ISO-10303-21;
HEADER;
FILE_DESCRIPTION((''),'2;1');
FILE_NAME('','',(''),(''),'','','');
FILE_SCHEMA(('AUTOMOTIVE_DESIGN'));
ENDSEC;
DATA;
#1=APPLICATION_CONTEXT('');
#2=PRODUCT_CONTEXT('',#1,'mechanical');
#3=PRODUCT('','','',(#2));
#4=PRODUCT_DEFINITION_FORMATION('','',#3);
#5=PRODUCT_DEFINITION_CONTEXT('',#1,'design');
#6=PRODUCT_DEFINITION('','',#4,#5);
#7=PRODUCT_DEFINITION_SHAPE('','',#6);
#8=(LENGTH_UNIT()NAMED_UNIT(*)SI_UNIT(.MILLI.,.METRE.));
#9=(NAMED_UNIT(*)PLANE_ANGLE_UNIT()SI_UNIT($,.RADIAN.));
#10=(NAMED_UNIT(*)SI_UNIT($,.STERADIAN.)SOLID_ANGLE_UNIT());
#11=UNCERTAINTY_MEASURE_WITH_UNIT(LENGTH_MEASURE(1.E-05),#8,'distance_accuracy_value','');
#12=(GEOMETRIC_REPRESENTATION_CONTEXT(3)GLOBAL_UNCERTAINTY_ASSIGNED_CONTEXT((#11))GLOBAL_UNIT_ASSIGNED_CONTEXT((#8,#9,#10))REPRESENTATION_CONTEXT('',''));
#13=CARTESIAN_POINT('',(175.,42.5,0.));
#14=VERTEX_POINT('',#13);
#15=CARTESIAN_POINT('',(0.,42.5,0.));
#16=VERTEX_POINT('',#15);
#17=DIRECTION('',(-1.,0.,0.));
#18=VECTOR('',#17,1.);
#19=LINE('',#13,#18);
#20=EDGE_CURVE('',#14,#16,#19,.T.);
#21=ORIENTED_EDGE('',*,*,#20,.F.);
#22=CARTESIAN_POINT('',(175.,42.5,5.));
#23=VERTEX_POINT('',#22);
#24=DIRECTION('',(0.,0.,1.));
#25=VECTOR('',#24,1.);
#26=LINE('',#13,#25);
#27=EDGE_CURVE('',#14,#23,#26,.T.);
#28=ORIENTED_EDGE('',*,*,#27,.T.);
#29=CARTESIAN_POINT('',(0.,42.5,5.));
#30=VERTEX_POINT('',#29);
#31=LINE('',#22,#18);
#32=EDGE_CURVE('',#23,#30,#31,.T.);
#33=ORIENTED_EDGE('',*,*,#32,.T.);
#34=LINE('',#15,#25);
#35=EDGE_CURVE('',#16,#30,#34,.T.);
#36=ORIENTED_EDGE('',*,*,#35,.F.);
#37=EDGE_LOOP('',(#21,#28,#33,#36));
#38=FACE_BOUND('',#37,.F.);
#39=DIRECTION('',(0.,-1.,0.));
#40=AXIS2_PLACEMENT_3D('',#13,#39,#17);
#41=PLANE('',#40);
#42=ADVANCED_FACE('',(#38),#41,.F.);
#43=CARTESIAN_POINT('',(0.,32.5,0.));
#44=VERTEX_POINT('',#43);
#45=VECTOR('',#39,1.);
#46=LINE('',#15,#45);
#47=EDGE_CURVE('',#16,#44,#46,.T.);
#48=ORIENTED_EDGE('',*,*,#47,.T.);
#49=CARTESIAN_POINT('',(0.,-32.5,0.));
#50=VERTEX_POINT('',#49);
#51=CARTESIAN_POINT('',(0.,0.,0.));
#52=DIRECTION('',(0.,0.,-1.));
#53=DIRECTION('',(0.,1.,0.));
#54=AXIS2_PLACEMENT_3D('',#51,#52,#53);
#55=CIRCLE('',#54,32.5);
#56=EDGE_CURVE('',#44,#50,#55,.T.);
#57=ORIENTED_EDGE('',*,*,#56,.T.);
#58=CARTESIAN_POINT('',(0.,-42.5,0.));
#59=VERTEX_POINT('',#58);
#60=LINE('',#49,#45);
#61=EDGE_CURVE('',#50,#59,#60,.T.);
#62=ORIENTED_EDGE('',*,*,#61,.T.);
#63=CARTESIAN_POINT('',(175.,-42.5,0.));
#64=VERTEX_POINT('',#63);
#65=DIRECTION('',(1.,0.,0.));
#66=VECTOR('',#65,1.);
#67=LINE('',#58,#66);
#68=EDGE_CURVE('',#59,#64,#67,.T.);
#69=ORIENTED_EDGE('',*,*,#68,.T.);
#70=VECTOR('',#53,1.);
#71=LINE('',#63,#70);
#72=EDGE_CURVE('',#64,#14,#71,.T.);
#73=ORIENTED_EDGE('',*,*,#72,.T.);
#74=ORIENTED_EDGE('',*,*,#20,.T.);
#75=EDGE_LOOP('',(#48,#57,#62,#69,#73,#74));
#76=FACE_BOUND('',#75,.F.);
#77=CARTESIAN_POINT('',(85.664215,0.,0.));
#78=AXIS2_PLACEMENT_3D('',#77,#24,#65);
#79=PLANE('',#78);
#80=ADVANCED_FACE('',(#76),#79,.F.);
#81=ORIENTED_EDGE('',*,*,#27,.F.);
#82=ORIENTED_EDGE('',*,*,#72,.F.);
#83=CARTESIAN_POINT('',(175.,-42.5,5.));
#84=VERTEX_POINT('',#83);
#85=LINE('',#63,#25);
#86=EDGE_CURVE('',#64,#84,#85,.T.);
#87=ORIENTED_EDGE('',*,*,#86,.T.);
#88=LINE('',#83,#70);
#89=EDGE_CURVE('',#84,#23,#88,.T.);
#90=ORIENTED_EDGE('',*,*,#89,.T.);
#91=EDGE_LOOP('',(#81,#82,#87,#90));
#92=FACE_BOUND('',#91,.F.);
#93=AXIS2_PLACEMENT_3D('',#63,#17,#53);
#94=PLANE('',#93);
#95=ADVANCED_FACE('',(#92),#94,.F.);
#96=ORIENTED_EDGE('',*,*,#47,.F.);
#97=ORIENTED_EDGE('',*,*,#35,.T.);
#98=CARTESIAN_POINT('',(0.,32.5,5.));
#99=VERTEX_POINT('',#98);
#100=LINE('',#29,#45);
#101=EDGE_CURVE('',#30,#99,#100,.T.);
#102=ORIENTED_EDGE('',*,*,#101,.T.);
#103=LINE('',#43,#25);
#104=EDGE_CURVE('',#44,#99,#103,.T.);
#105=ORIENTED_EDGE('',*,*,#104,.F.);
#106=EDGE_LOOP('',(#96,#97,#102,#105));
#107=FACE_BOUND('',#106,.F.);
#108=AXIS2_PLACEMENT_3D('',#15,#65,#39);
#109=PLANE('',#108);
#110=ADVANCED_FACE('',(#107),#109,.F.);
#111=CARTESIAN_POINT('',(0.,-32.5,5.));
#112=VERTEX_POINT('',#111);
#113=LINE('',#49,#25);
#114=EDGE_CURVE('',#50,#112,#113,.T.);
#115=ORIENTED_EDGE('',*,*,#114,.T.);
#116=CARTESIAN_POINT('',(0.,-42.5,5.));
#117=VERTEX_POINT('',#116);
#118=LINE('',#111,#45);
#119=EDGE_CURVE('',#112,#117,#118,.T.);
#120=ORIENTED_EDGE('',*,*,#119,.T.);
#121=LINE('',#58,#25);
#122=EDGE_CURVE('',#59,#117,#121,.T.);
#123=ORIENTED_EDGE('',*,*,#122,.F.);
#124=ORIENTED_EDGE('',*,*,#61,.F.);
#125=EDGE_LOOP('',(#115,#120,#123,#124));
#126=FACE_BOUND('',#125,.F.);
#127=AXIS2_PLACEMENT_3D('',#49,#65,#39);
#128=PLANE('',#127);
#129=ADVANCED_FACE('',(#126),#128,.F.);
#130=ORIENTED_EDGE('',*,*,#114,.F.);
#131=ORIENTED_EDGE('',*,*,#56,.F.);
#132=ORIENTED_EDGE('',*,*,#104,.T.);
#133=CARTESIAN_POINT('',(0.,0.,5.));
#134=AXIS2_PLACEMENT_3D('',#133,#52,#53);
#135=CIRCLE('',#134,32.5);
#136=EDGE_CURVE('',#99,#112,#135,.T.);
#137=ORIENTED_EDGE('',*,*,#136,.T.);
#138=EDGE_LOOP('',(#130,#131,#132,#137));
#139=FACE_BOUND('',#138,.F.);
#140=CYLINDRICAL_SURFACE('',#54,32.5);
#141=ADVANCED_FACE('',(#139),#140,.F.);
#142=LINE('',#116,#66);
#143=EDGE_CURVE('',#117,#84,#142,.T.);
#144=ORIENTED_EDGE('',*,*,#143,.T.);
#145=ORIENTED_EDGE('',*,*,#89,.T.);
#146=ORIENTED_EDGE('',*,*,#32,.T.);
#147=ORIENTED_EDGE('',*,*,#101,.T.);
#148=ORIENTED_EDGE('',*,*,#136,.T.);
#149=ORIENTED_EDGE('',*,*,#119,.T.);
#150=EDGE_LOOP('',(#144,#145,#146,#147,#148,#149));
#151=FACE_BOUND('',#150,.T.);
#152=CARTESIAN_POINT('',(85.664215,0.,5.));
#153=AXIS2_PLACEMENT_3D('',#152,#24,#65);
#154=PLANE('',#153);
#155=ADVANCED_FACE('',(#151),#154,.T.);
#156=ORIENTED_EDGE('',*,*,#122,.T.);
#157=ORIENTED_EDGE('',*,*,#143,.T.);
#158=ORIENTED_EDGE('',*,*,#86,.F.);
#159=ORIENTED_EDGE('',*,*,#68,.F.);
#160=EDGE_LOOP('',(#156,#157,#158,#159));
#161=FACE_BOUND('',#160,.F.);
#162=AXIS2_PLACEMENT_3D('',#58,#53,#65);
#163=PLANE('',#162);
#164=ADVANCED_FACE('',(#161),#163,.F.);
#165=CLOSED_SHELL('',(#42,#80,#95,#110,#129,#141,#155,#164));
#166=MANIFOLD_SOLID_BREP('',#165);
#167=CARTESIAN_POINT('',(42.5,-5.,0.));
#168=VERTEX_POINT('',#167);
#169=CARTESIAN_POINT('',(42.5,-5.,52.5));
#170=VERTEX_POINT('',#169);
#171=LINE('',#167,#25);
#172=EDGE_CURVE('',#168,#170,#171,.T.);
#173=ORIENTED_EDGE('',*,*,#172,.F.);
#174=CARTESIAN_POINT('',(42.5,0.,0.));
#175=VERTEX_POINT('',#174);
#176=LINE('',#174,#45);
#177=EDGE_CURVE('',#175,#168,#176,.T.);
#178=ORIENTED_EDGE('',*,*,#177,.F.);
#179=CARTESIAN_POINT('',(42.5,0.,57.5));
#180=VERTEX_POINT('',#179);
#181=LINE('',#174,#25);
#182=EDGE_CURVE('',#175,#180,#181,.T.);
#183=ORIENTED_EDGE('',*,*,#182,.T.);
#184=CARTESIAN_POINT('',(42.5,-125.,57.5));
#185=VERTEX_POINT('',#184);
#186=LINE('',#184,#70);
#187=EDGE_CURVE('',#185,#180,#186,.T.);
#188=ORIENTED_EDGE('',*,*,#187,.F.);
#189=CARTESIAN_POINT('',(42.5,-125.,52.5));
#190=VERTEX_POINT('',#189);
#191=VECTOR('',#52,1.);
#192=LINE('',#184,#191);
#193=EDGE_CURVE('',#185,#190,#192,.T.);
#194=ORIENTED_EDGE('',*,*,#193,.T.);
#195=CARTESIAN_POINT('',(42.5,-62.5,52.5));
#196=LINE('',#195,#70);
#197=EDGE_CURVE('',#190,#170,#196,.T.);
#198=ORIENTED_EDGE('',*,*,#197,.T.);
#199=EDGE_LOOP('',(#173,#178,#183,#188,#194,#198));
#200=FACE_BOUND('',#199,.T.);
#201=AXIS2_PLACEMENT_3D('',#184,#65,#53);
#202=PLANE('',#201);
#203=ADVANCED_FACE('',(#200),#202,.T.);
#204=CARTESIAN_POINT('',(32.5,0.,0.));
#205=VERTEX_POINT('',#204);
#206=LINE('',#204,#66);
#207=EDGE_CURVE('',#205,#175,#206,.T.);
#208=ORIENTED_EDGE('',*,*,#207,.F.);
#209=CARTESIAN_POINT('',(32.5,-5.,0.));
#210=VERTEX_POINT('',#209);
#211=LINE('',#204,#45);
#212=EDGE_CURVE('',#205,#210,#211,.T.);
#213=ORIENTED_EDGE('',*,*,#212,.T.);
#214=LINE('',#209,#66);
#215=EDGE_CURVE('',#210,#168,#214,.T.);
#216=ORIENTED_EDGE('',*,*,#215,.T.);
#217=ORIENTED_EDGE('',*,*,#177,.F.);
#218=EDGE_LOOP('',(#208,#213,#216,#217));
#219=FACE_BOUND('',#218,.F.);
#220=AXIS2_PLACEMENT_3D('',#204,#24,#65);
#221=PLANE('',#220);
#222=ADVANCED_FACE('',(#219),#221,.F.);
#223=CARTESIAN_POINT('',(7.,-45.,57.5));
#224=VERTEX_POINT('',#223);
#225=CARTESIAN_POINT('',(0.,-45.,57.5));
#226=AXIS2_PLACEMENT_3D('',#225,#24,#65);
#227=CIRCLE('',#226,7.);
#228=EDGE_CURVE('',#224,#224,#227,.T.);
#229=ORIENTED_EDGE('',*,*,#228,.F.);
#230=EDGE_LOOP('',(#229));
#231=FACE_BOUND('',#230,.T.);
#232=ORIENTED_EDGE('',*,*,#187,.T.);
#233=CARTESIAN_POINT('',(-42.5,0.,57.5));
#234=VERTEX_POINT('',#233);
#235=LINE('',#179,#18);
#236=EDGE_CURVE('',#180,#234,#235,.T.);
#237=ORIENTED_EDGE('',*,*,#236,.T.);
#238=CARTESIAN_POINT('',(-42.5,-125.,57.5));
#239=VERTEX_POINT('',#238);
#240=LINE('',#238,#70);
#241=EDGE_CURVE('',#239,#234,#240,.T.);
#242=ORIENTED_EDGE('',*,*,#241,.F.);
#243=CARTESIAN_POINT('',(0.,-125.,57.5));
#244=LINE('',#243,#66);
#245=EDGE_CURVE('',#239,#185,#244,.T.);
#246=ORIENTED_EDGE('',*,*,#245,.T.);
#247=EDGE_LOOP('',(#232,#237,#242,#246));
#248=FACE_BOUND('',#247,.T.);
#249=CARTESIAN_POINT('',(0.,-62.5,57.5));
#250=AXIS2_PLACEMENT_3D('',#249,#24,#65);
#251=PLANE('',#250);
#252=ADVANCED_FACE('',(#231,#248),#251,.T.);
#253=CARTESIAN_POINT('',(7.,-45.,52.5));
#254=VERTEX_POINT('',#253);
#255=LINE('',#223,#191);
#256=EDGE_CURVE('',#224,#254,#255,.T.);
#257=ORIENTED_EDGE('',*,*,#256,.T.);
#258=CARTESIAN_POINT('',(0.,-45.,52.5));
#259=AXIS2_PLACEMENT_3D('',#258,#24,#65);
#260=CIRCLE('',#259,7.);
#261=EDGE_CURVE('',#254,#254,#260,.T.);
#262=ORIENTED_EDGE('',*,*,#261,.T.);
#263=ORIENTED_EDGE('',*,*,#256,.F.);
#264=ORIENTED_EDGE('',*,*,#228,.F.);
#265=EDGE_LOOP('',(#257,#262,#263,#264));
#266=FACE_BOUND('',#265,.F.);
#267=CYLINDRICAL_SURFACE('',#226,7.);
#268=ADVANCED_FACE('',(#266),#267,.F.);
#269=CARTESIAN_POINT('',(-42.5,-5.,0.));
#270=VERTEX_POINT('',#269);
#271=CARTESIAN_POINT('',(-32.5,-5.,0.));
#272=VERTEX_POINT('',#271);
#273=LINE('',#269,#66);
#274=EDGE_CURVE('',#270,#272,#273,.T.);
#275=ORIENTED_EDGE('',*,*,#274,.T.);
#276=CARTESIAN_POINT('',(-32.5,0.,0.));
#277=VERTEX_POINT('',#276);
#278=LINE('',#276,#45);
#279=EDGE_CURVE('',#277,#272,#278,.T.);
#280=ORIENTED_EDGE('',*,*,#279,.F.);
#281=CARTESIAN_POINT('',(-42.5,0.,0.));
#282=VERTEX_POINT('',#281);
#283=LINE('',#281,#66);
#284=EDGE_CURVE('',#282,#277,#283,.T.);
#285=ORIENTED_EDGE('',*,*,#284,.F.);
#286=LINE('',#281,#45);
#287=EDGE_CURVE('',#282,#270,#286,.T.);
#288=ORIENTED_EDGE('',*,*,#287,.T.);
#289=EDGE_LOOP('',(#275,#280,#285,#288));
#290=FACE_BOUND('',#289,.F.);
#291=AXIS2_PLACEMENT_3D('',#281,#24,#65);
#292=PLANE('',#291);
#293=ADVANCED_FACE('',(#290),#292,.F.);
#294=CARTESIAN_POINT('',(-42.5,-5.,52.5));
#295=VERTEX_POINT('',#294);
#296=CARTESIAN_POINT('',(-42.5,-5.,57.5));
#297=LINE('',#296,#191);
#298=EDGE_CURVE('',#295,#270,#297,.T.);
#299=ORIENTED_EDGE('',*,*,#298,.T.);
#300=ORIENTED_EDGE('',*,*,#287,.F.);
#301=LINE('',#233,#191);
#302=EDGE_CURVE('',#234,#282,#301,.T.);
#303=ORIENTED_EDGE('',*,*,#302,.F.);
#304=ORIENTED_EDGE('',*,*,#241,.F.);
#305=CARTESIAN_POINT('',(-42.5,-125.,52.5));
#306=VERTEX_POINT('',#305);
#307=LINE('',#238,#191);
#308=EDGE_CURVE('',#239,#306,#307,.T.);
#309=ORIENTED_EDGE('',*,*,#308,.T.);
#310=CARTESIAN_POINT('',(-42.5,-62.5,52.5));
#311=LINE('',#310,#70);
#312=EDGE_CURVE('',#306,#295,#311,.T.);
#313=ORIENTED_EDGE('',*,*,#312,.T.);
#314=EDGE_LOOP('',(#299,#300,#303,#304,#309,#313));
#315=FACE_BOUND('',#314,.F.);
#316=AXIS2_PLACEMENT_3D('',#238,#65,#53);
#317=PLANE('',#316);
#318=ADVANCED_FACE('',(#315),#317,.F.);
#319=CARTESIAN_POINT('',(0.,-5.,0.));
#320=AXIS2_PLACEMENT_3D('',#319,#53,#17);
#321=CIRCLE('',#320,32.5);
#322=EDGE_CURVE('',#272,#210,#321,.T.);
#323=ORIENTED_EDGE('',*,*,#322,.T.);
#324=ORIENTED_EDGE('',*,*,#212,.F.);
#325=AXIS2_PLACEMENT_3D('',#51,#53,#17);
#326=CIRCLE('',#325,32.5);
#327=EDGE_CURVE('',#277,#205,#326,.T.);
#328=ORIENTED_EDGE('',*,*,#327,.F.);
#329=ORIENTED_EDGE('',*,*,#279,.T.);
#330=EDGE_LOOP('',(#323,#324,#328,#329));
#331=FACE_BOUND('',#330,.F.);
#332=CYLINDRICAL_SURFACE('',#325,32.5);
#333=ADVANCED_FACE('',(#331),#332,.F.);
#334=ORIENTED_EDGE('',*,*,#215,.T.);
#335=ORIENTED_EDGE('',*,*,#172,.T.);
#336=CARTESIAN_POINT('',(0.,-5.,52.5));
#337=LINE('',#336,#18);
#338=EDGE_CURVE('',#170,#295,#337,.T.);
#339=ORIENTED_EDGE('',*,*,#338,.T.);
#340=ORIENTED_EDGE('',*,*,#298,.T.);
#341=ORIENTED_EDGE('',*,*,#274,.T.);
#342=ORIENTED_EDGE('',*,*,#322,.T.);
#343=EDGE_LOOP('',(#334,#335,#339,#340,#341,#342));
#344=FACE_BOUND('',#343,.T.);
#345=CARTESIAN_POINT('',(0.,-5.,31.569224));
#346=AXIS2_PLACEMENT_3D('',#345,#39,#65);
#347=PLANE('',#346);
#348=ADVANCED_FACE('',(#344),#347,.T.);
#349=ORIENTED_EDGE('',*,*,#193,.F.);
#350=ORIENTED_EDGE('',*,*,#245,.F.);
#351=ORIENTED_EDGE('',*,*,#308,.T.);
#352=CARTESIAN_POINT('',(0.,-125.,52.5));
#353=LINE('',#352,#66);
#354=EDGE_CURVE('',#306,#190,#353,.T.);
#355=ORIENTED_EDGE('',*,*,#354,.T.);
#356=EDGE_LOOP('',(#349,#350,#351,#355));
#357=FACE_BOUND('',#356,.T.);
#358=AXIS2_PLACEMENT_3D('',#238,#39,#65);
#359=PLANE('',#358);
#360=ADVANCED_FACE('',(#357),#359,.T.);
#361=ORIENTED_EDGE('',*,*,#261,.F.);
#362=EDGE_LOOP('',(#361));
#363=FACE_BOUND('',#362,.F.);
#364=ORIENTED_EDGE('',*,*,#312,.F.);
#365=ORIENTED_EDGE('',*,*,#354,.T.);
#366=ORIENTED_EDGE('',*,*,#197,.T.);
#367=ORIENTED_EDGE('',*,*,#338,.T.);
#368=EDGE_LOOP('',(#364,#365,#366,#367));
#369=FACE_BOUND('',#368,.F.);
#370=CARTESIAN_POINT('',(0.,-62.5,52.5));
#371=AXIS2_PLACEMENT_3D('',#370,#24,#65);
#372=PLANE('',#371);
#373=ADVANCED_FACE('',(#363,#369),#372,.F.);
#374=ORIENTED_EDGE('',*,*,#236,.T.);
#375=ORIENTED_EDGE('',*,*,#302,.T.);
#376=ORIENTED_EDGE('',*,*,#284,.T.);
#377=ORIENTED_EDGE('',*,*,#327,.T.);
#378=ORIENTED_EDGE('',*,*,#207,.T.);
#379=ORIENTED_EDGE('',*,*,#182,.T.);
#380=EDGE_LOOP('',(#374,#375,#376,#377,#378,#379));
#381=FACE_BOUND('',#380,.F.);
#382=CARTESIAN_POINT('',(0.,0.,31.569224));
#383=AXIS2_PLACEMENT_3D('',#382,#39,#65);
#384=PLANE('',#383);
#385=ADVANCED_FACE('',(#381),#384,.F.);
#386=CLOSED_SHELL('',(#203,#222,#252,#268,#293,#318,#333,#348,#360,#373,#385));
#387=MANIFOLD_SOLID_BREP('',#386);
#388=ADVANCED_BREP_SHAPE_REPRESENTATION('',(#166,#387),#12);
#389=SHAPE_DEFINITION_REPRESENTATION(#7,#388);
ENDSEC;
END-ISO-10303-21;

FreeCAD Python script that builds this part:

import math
import FreeCAD as App
import Part
import Sketcher
Q = App.Units.Quantity


def add_polygon(sketch, points):
    """Adds a closed chain of lines whose ends are joined by coincident constraints."""
    first, n = sketch.GeometryCount, len(points)
    for a, b in zip(points, points[1:] + points[:1]):
        sketch.addGeometry(Part.LineSegment(App.Vector(*a, 0), App.Vector(*b, 0)), False)
    for i in range(n):
        sketch.addConstraint(Sketcher.Constraint("Coincident", first + i, 2, first + (i + 1) % n, 1))

doc = App.newDocument("Part")
body = doc.addObject("PartDesign::Body", "Body")

sketch1 = body.newObject("Sketcher::SketchObject", "Sketch")
sketch1.AttachmentSupport = (doc.getObject("XZ_Plane"), [""])
sketch1.MapMode = "FlatFace"
sketch1.addGeometry([
    Part.ArcOfCircle(Part.Circle(App.Vector(0, 0, 0), App.Vector(0, 0, 1), 32), math.radians(0), math.radians(180)),
    Part.LineSegment(App.Vector(32, 0, 0), App.Vector(42, 0, 0)),
    Part.LineSegment(App.Vector(42, 0, 0), App.Vector(42, 58, 0)),
    Part.LineSegment(App.Vector(42, 58, 0), App.Vector(-42, 58, 0)),
    Part.LineSegment(App.Vector(-42, 58, 0), App.Vector(-42, 0, 0)),
    Part.LineSegment(App.Vector(-42, 0, 0), App.Vector(-32, 0, 0)),
], False)
sketch1.addConstraint([
    Sketcher.Constraint("Coincident", 0, 1, 1, 1),
    Sketcher.Constraint("Coincident", 1, 2, 2, 1),
    Sketcher.Constraint("Coincident", 2, 2, 3, 1),
    Sketcher.Constraint("Coincident", 3, 2, 4, 1),
    Sketcher.Constraint("Coincident", 4, 2, 5, 1),
    Sketcher.Constraint("Coincident", 5, 2, 0, 2),
    Sketcher.Constraint("Horizontal", 1),
    Sketcher.Constraint("Vertical", 2),
    Sketcher.Constraint("Horizontal", 3),
    Sketcher.Constraint("Vertical", 4),
    Sketcher.Constraint("Horizontal", 5),
    Sketcher.Constraint("Coincident", 0, 3, -1, 1),
    Sketcher.Constraint("Symmetric", 1, 2, 4, 2, -1, 1),
    Sketcher.Constraint("PointOnObject", 0, 1, -1),
    Sketcher.Constraint("Radius", 0, Q("32.5 mm")),
    Sketcher.Constraint("DistanceX", 1, 1, 1, 2, Q("10 mm")),
    Sketcher.Constraint("DistanceY", 2, 1, 2, 2, Q("57.5 mm")),
])
pad1 = body.newObject("PartDesign::Pad", "Pad")
pad1.Profile = sketch1
pad1.Length = 5

sketch2 = body.newObject("Sketcher::SketchObject", "Sketch001")
sketch2.AttachmentSupport = (doc.getObject("XY_Plane"), [""])
sketch2.MapMode = "FlatFace"
sketch2.AttachmentOffset = App.Placement(App.Vector(0, 0, 57.5), App.Rotation())
add_polygon(sketch2, [(-42, 0), (-42, -125), (42, -125), (42, 0)])
sketch2.addGeometry(Part.Circle(App.Vector(0, -45, 0), App.Vector(0, 0, 1), 7), False)
sketch2.addConstraint([
    Sketcher.Constraint("Vertical", 0),
    Sketcher.Constraint("Horizontal", 1),
    Sketcher.Constraint("Vertical", 2),
    Sketcher.Constraint("Horizontal", 3),
    Sketcher.Constraint("Symmetric", 2, 2, 3, 2, -1, 1),
    Sketcher.Constraint("PointOnObject", 4, 3, -2),
    Sketcher.Constraint("Diameter", 4, Q("14 mm")),
    Sketcher.Constraint("DistanceX", 1, 1, 1, 2, Q("85 mm")),
    Sketcher.Constraint("DistanceY", 0, 2, 0, 1, Q("125 mm")),
    Sketcher.Constraint("DistanceY", 4, 3, -1, 1, Q("45 mm")),
])
pad2 = body.newObject("PartDesign::Pad", "Pad001")
pad2.Profile = sketch2
pad2.Length = 5
pad2.Reversed = True
body2 = doc.addObject("PartDesign::Body", "Body001")

sketch3 = body2.newObject("Sketcher::SketchObject", "Sketch002")
sketch3.AttachmentSupport = (doc.getObject("XY_Plane001"), [""])
sketch3.MapMode = "FlatFace"
sketch3.addGeometry([
    Part.ArcOfCircle(Part.Circle(App.Vector(0, 0, 0), App.Vector(0, 0, 1), 32), math.radians(-90), math.radians(90)),
    Part.LineSegment(App.Vector(0, -32, 0), App.Vector(0, -42, 0)),
    Part.LineSegment(App.Vector(0, -42, 0), App.Vector(175, -42, 0)),
    Part.LineSegment(App.Vector(175, -42, 0), App.Vector(175, 42, 0)),
    Part.LineSegment(App.Vector(175, 42, 0), App.Vector(0, 42, 0)),
    Part.LineSegment(App.Vector(0, 42, 0), App.Vector(0, 32, 0)),
], False)
sketch3.addConstraint([
    Sketcher.Constraint("Coincident", 0, 1, 1, 1),
    Sketcher.Constraint("Coincident", 1, 2, 2, 1),
    Sketcher.Constraint("Coincident", 2, 2, 3, 1),
    Sketcher.Constraint("Coincident", 3, 2, 4, 1),
    Sketcher.Constraint("Coincident", 4, 2, 5, 1),
    Sketcher.Constraint("Coincident", 5, 2, 0, 2),
    Sketcher.Constraint("Vertical", 1),
    Sketcher.Constraint("Horizontal", 2),
    Sketcher.Constraint("Vertical", 3),
    Sketcher.Constraint("Horizontal", 4),
    Sketcher.Constraint("Vertical", 5),
    Sketcher.Constraint("Coincident", 0, 3, -1, 1),
    Sketcher.Constraint("Symmetric", 1, 2, 4, 2, -1, 1),
    Sketcher.Constraint("PointOnObject", 0, 1, -2),
    Sketcher.Constraint("Radius", 0, Q("32.5 mm")),
    Sketcher.Constraint("DistanceX", 2, 1, 2, 2, Q("175 mm")),
    Sketcher.Constraint("DistanceY", 1, 2, 1, 1, Q("10 mm")),
])
pad3 = body2.newObject("PartDesign::Pad", "Pad002")
pad3.Profile = sketch3
pad3.Length = 5

doc.recompute()
